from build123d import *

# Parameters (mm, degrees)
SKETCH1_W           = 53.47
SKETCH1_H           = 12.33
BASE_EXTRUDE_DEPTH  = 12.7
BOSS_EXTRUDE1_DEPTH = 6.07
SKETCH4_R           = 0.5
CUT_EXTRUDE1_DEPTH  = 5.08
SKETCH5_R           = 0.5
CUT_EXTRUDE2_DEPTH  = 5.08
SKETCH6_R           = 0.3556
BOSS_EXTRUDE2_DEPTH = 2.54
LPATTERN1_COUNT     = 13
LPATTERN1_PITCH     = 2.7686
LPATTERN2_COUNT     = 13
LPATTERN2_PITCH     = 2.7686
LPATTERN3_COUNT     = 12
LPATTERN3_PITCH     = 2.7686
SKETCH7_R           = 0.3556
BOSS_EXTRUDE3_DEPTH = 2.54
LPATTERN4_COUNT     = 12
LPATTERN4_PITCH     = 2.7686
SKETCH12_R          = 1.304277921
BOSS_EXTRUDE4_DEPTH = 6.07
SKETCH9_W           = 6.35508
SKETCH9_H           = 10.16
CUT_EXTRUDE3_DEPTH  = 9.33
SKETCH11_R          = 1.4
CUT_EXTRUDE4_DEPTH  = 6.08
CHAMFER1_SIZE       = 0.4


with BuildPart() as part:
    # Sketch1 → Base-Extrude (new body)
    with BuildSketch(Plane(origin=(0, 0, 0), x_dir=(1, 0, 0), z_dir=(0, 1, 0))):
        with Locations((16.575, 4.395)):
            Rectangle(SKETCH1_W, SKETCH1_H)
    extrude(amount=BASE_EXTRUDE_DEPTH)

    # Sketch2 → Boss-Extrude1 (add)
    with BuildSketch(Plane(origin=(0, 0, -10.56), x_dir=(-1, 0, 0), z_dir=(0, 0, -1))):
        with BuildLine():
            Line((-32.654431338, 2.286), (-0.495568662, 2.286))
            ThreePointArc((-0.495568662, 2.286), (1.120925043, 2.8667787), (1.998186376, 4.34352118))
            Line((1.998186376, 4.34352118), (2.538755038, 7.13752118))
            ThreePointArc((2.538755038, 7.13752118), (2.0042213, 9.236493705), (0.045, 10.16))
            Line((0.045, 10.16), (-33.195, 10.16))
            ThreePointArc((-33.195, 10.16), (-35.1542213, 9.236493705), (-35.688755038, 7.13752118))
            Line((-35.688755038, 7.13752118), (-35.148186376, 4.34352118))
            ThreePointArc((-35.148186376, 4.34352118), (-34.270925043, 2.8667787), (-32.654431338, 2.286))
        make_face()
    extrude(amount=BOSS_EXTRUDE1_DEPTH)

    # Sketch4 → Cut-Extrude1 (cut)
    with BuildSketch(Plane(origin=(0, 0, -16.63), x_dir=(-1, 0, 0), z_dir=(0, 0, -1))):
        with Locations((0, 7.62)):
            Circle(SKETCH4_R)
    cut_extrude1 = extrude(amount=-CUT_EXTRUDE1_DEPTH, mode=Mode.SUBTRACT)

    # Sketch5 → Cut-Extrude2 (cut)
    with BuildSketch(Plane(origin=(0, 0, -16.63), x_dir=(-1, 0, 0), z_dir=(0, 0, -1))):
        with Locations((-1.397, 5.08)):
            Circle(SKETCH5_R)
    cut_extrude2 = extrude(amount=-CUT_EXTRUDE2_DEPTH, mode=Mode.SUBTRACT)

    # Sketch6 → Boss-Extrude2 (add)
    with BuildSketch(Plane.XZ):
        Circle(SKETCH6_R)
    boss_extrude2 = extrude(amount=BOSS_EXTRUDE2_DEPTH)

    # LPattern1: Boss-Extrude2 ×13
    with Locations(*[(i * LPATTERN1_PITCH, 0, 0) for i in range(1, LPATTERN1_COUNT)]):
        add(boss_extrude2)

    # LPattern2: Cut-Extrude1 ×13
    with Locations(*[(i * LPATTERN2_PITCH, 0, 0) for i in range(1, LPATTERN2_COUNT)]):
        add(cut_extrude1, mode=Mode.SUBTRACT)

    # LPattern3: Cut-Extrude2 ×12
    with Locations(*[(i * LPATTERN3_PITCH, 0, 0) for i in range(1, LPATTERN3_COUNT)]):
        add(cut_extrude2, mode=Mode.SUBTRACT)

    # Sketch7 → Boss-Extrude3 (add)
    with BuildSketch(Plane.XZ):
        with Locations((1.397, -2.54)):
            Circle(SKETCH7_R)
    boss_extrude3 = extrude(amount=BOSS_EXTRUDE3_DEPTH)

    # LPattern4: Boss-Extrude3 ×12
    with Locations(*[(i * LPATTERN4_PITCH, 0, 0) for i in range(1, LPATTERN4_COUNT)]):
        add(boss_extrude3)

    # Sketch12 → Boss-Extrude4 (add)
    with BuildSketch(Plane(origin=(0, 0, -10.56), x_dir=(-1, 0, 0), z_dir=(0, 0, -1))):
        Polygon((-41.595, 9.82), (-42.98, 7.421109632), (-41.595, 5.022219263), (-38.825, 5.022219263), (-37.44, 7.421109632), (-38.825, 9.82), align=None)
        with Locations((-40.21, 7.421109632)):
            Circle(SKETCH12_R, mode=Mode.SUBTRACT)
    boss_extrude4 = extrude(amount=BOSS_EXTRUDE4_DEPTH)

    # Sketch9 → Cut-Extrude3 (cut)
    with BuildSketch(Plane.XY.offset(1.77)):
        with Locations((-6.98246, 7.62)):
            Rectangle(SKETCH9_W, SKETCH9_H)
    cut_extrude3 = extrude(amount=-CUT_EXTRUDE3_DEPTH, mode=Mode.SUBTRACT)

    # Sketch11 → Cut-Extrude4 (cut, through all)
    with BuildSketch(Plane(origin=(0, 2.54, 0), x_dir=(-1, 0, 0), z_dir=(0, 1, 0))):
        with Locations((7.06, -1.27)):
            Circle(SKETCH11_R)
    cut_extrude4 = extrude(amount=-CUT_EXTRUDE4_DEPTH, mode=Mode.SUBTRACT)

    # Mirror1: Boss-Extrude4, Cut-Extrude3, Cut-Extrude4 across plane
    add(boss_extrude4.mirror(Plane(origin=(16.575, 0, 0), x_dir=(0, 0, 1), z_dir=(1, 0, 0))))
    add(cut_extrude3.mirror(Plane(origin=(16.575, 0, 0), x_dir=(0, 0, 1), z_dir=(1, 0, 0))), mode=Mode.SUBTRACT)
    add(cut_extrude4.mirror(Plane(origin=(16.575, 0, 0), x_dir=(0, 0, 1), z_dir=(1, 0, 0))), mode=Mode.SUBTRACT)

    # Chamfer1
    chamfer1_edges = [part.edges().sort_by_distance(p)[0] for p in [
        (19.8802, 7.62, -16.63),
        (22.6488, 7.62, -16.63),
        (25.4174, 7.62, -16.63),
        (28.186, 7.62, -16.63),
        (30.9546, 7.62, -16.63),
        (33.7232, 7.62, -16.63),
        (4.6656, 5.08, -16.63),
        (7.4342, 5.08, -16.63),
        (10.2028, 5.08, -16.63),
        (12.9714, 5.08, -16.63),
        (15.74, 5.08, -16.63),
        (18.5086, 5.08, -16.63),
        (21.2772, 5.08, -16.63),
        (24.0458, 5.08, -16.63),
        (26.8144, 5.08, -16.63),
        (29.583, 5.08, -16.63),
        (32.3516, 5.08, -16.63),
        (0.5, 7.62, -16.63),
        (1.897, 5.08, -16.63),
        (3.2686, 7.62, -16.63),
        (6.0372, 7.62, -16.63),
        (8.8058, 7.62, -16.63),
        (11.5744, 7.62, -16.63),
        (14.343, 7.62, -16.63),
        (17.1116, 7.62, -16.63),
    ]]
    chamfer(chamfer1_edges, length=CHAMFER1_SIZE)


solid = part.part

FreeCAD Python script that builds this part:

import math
import FreeCAD as App
import Part
import Sketcher
Q = App.Units.Quantity


def edges_at(feature, points):
    """Names of the edges that pass closest to the given points."""
    edges = feature.Shape.Edges
    near = lambda p: min(range(len(edges)), key=lambda i: edges[i].distToShape(Part.Vertex(*p))[0])
    return sorted({f"Edge{near(p) + 1}" for p in points})

doc = App.newDocument("Part")
body = doc.addObject("PartDesign::Body", "Body")

# Sketch on XZ plane
sketch1 = body.newObject("Sketcher::SketchObject", "Sketch")
sketch1.AttachmentSupport = (doc.getObject("XZ_Plane"), [""])
sketch1.MapMode = "FlatFace"
sketch1.addGeometry([
    Part.LineSegment(App.Vector(-10.16, -10.56, 0), App.Vector(-10.16, 1.77, 0)),
    Part.LineSegment(App.Vector(-10.16, 1.77, 0), App.Vector(43.31, 1.77, 0)),
    Part.LineSegment(App.Vector(43.31, 1.77, 0), App.Vector(43.31, -10.56, 0)),
    Part.LineSegment(App.Vector(43.31, -10.56, 0), App.Vector(-10.16, -10.56, 0)),
], False)
sketch1.addConstraint([
    Sketcher.Constraint("Coincident", 0, 2, 1, 1),
    Sketcher.Constraint("Coincident", 1, 2, 2, 1),
    Sketcher.Constraint("Coincident", 2, 2, 3, 1),
    Sketcher.Constraint("Coincident", 3, 2, 0, 1),
    Sketcher.Constraint("Vertical", 0),
    Sketcher.Constraint("Horizontal", 1),
    Sketcher.Constraint("Vertical", 2),
    Sketcher.Constraint("Horizontal", 3),
    Sketcher.Constraint("DistanceX", 0, 2, -1, 1, Q("0.4 in")),
    Sketcher.Constraint("DistanceX", 1, 1, 1, 2, 53.47),
    Sketcher.Constraint("DistanceY", 0, 1, 0, 2, 12.33),
    Sketcher.Constraint("DistanceY", -1, 1, 0, 2, 1.77),
])
pad1 = body.newObject("PartDesign::Pad", "Pad")
pad1.Profile = sketch1
pad1.Length = Q("0.5 in")
pad1.Reversed = True

# Sketch on XY plane
sketch2 = body.newObject("Sketcher::SketchObject", "Sketch001")
sketch2.AttachmentSupport = (doc.getObject("XY_Plane"), [""])
sketch2.MapMode = "FlatFace"
sketch2.AttachmentOffset = App.Placement(App.Vector(0, 0, -10.56), App.Rotation())
sketch2.addGeometry([
    Part.LineSegment(App.Vector(32.654431, 2.286, 0), App.Vector(0.495569, 2.286, 0)),  # 0
    Part.ArcOfCircle(Part.Circle(App.Vector(0.495569, 4.826, 0), App.Vector(0, 0, 1), 2.54), math.radians(-169.05), math.radians(-90)),  # 1
    Part.LineSegment(App.Vector(-1.998186, 4.343521, 0), App.Vector(-2.538755, 7.137521, 0)),  # 2
    Part.ArcOfCircle(Part.Circle(App.Vector(-0.045, 7.62, 0), App.Vector(0, 0, 1), 2.54), math.radians(90), math.radians(190.95)),  # 3
    Part.LineSegment(App.Vector(-0.045, 10.16, 0), App.Vector(33.195, 10.16, 0)),  # 4
    Part.ArcOfCircle(Part.Circle(App.Vector(33.195, 7.62, 0), App.Vector(0, 0, 1), 2.54), math.radians(-10.95), math.radians(90)),  # 5
    Part.LineSegment(App.Vector(35.688755, 7.137521, 0), App.Vector(35.148186, 4.343521, 0)),  # 6
    Part.ArcOfCircle(Part.Circle(App.Vector(32.654431, 4.826, 0), App.Vector(0, 0, 1), 2.54), math.radians(-90), math.radians(-10.95)),  # 7
], False)
sketch2.addConstraint([
    Sketcher.Constraint("Tangent", 0, 2, 1, 2),
    Sketcher.Constraint("Tangent", 1, 1, 2, 1),
    Sketcher.Constraint("Tangent", 2, 2, 3, 2),
    Sketcher.Constraint("Tangent", 3, 1, 4, 1),
    Sketcher.Constraint("Tangent", 4, 2, 5, 2),
    Sketcher.Constraint("Tangent", 5, 1, 6, 1),
    Sketcher.Constraint("Tangent", 6, 2, 7, 2),
    Sketcher.Constraint("Tangent", 7, 1, 0, 1),
    Sketcher.Constraint("Horizontal", 0),
    Sketcher.Constraint("Horizontal", 4),
    Sketcher.Constraint("Equal", 1, 3),
    Sketcher.Constraint("Equal", 3, 5),
    Sketcher.Constraint("Equal", 5, 7),
    Sketcher.Constraint("Horizontal", 2, 2, 5, 1),
    Sketcher.Constraint("Radius", 1, Q("0.1 in")),
    Sketcher.Constraint("DistanceY", -1, 1, 3, 3, Q("0.3 in")),
    Sketcher.Constraint("DistanceY", -1, 1, 1, 3, Q("0.19 in")),
    Sketcher.Constraint("Angle", 2, Q("100.95 deg")),
    Sketcher.Constraint("DistanceX", 4, 1, 4, 2, 33.24),
    Sketcher.Constraint("DistanceX", 3, 3, -1, 1, 0.045),
])
pad2 = body.newObject("PartDesign::Pad", "Pad001")
pad2.Profile = sketch2
pad2.Length = 6.07
pad2.Reversed = True

# Sketch on XY plane
sketch3 = body.newObject("Sketcher::SketchObject", "Sketch002")
sketch3.AttachmentSupport = (doc.getObject("XY_Plane"), [""])
sketch3.MapMode = "FlatFace"
sketch3.AttachmentOffset = App.Placement(App.Vector(0, 0, -16.63), App.Rotation())
sketch3.addGeometry(Part.Circle(App.Vector(0, 7.62, 0), App.Vector(0, 0, 1), 0.5), False)
sketch3.addConstraint([
    Sketcher.Constraint("PointOnObject", 0, 3, -2),
    Sketcher.Constraint("DistanceY", -1, 1, 0, 3, Q("0.3 in")),
    Sketcher.Constraint("Diameter", 0, 1.0),
])
pocket1 = body.newObject("PartDesign::Pocket", "Pocket")
pocket1.Profile = sketch3
pocket1.Length = Q("0.2 in")
pocket1.Reversed = True

# Sketch on XY plane
sketch4 = body.newObject("Sketcher::SketchObject", "Sketch003")
sketch4.AttachmentSupport = (doc.getObject("XY_Plane"), [""])
sketch4.MapMode = "FlatFace"
sketch4.AttachmentOffset = App.Placement(App.Vector(0, 0, -16.63), App.Rotation())
sketch4.addGeometry(Part.Circle(App.Vector(1.397, 5.08, 0), App.Vector(0, 0, 1), 0.5), False)
sketch4.addConstraint([
    Sketcher.Constraint("DistanceY", -1, 1, 0, 3, Q("0.2 in")),
    Sketcher.Constraint("Diameter", 0, 1.0),
    Sketcher.Constraint("DistanceX", -1, 1, 0, 3, Q("0.055 in")),
])
pocket2 = body.newObject("PartDesign::Pocket", "Pocket001")
pocket2.Profile = sketch4
pocket2.Length = Q("0.2 in")
pocket2.Reversed = True

# Sketch on XZ plane
sketch5 = body.newObject("Sketcher::SketchObject", "Sketch004")
sketch5.AttachmentSupport = (doc.getObject("XZ_Plane"), [""])
sketch5.MapMode = "FlatFace"
sketch5.addGeometry(Part.Circle(App.Vector(0, 0, 0), App.Vector(0, 0, 1), 0.3556), False)
sketch5.addConstraint([
    Sketcher.Constraint("Coincident", 0, 3, -1, 1),
    Sketcher.Constraint("Diameter", 0, Q("0.028 in")),
])
pad3 = body.newObject("PartDesign::Pad", "Pad002")
pad3.Profile = sketch5
pad3.Length = Q("0.1 in")
doc.recompute()

linearpattern = body.newObject("PartDesign::LinearPattern", "LinearPattern")
linearpattern.Originals = [pad3]
linearpattern.Direction = (doc.getObject("X_Axis"), [""])
linearpattern.Mode = "offset"
linearpattern.Offset = Q("0.109 in")
linearpattern.Occurrences = 13
body.Tip = linearpattern
doc.recompute()

linearpattern2 = body.newObject("PartDesign::LinearPattern", "LinearPattern001")
linearpattern2.Originals = [pocket1]
linearpattern2.Direction = (doc.getObject("X_Axis"), [""])
linearpattern2.Mode = "offset"
linearpattern2.Offset = Q("0.109 in")
linearpattern2.Occurrences = 13
body.Tip = linearpattern2
doc.recompute()

linearpattern3 = body.newObject("PartDesign::LinearPattern", "LinearPattern002")
linearpattern3.Originals = [pocket2]
linearpattern3.Direction = (doc.getObject("X_Axis"), [""])
linearpattern3.Mode = "offset"
linearpattern3.Offset = Q("0.109 in")
linearpattern3.Occurrences = 12
body.Tip = linearpattern3

# Sketch on XZ plane
sketch6 = body.newObject("Sketcher::SketchObject", "Sketch005")
sketch6.AttachmentSupport = (doc.getObject("XZ_Plane"), [""])
sketch6.MapMode = "FlatFace"
sketch6.addGeometry(Part.Circle(App.Vector(1.397, -2.54, 0), App.Vector(0, 0, 1), 0.3556), False)
sketch6.addConstraint([
    Sketcher.Constraint("Diameter", 0, Q("0.028 in")),
    Sketcher.Constraint("DistanceY", 0, 3, -1, 1, Q("0.1 in")),
    Sketcher.Constraint("DistanceX", -1, 1, 0, 3, Q("0.055 in")),
])
pad4 = body.newObject("PartDesign::Pad", "Pad003")
pad4.Profile = sketch6
pad4.Length = Q("0.1 in")
doc.recompute()

linearpattern4 = body.newObject("PartDesign::LinearPattern", "LinearPattern003")
linearpattern4.Originals = [pad4]
linearpattern4.Direction = (doc.getObject("X_Axis"), [""])
linearpattern4.Mode = "offset"
linearpattern4.Offset = Q("0.109 in")
linearpattern4.Occurrences = 12
body.Tip = linearpattern4

# Sketch on XY plane
sketch7 = body.newObject("Sketcher::SketchObject", "Sketch006")
sketch7.AttachmentSupport = (doc.getObject("XY_Plane"), [""])
sketch7.MapMode = "FlatFace"
sketch7.AttachmentOffset = App.Placement(App.Vector(0, 0, -10.56), App.Rotation())
sketch7.addGeometry([
    Part.LineSegment(App.Vector(41.595, 9.82, 0), App.Vector(42.98, 7.42111, 0)),  # 0
    Part.LineSegment(App.Vector(42.98, 7.42111, 0), App.Vector(41.595, 5.022219, 0)),  # 1
    Part.LineSegment(App.Vector(41.595, 5.022219, 0), App.Vector(38.825, 5.022219, 0)),  # 2
    Part.LineSegment(App.Vector(38.825, 5.022219, 0), App.Vector(37.44, 7.42111, 0)),  # 3
    Part.LineSegment(App.Vector(37.44, 7.42111, 0), App.Vector(38.825, 9.82, 0)),  # 4
    Part.LineSegment(App.Vector(38.825, 9.82, 0), App.Vector(41.595, 9.82, 0)),  # 5
    Part.Circle(App.Vector(40.21, 7.42111, 0), App.Vector(0, 0, 1), 1.304278),  # 6
], False)
sketch7.addConstraint([
    Sketcher.Constraint("Coincident", 0, 2, 1, 1),
    Sketcher.Constraint("Coincident", 1, 2, 2, 1),
    Sketcher.Constraint("Coincident", 2, 2, 3, 1),
    Sketcher.Constraint("Coincident", 3, 2, 4, 1),
    Sketcher.Constraint("Coincident", 4, 2, 5, 1),
    Sketcher.Constraint("Coincident", 5, 2, 0, 1),
    Sketcher.Constraint("Horizontal", 2),
    Sketcher.Constraint("Horizontal", 5),
    Sketcher.Constraint("Parallel", 0, 3),
    Sketcher.Constraint("Parallel", 1, 4),
    Sketcher.Constraint("Horizontal", 6, 3, 0, 2),
    Sketcher.Constraint("Horizontal", 0, 2, 3, 2),
    Sketcher.Constraint("Vertical", 2, 2, 4, 2),
    Sketcher.Constraint("Vertical", 1, 2, 5, 2),
    Sketcher.Constraint("Angle", 0, Q("-60 deg")),
    Sketcher.Constraint("Diameter", 6, 2.608556),
    Sketcher.Constraint("DistanceX", 2, 2, 2, 1, 2.77),
    Sketcher.Constraint("Distance", 0, 2.77),
    Sketcher.Constraint("DistanceX", -1, 1, 6, 3, 40.21),
    Sketcher.Constraint("DistanceX", -1, 1, 0, 2, 42.98),
    Sketcher.Constraint("DistanceY", -1, 1, 4, 2, 9.82),
])
pad5 = body.newObject("PartDesign::Pad", "Pad004")
pad5.Profile = sketch7
pad5.Length = 6.07
pad5.Reversed = True

# Sketch on XY plane
sketch8 = body.newObject("Sketcher::SketchObject", "Sketch007")
sketch8.AttachmentSupport = (doc.getObject("XY_Plane"), [""])
sketch8.MapMode = "FlatFace"
sketch8.AttachmentOffset = App.Placement(App.Vector(0, 0, 1.77), App.Rotation())
sketch8.addGeometry([
    Part.LineSegment(App.Vector(-10.16, 12.7, 0), App.Vector(-10.16, 2.54, 0)),
    Part.LineSegment(App.Vector(-10.16, 2.54, 0), App.Vector(-3.80492, 2.54, 0)),
    Part.LineSegment(App.Vector(-3.80492, 2.54, 0), App.Vector(-3.80492, 12.7, 0)),
    Part.LineSegment(App.Vector(-3.80492, 12.7, 0), App.Vector(-10.16, 12.7, 0)),
], False)
sketch8.addConstraint([
    Sketcher.Constraint("Coincident", 0, 2, 1, 1),
    Sketcher.Constraint("Coincident", 1, 2, 2, 1),
    Sketcher.Constraint("Coincident", 2, 2, 3, 1),
    Sketcher.Constraint("Coincident", 3, 2, 0, 1),
    Sketcher.Constraint("Vertical", 0),
    Sketcher.Constraint("Horizontal", 1),
    Sketcher.Constraint("Vertical", 2),
    Sketcher.Constraint("Horizontal", 3),
    Sketcher.Constraint("DistanceY", 0, 2, 0, 1, Q("0.4 in")),
    Sketcher.Constraint("DistanceX", 0, 2, -1, 1, Q("0.4 in")),
    Sketcher.Constraint("DistanceY", -1, 1, 0, 2, Q("0.1 in")),
    Sketcher.Constraint("DistanceX", 1, 1, 1, 2, Q("0.2502 in")),
])
pocket3 = body.newObject("PartDesign::Pocket", "Pocket002")
pocket3.Profile = sketch8
pocket3.Length = 9.33

# Sketch on XZ plane
sketch9 = body.newObject("Sketcher::SketchObject", "Sketch008")
sketch9.AttachmentSupport = (doc.getObject("XZ_Plane"), [""])
sketch9.MapMode = "FlatFace"
sketch9.AttachmentOffset = App.Placement(App.Vector(0, 0, -0.1 * 25.4), App.Rotation())
sketch9.addGeometry(Part.Circle(App.Vector(-7.06, -1.27, 0), App.Vector(0, 0, 1), 1.4), False)
sketch9.addConstraint([
    Sketcher.Constraint("Diameter", 0, 2.8),
    Sketcher.Constraint("DistanceY", 0, 3, -1, 1, Q("0.05 in")),
    Sketcher.Constraint("DistanceX", 0, 3, -1, 1, 7.06),
])
pocket4 = body.newObject("PartDesign::Pocket", "Pocket003")
pocket4.Profile = sketch9
pocket4.Type = "ThroughAll"
pocket4.Reversed = True
doc.recompute()

datumplane = body.newObject("PartDesign::Plane", "DatumPlane")
datumplane.AttachmentSupport = (doc.getObject("YZ_Plane"), [""])
datumplane.MapMode = "FlatFace"
datumplane.AttachmentOffset = App.Placement(App.Vector(0, 0, 16.575), App.Rotation())
mirrored = body.newObject("PartDesign::Mirrored", "Mirrored")
mirrored.Originals = [pad5, pocket3, pocket4]
mirrored.MirrorPlane = (datumplane, [""])
body.Tip = mirrored
doc.recompute()

chamfer = body.newObject("PartDesign::Chamfer", "Chamfer")
chamfer.Base = (mirrored, edges_at(mirrored, [
    (19.88, 7.62, -16.63),
    (22.649, 7.62, -16.63),
    (25.417, 7.62, -16.63),
    (28.186, 7.62, -16.63),
    (30.955, 7.62, -16.63),
    (33.723, 7.62, -16.63),
    (4.666, 5.08, -16.63),
    (7.434, 5.08, -16.63),
    (10.203, 5.08, -16.63),
    (12.971, 5.08, -16.63),
    (15.74, 5.08, -16.63),
    (18.509, 5.08, -16.63),
    (21.277, 5.08, -16.63),
    (24.046, 5.08, -16.63),
    (26.814, 5.08, -16.63),
    (29.583, 5.08, -16.63),
    (32.352, 5.08, -16.63),
    (0.5, 7.62, -16.63),
    (1.897, 5.08, -16.63),
    (3.269, 7.62, -16.63),
    (6.037, 7.62, -16.63),
    (8.806, 7.62, -16.63),
    (11.574, 7.62, -16.63),
    (14.343, 7.62, -16.63),
    (17.112, 7.62, -16.63),
]))
chamfer.Size = 0.4

doc.recompute()
